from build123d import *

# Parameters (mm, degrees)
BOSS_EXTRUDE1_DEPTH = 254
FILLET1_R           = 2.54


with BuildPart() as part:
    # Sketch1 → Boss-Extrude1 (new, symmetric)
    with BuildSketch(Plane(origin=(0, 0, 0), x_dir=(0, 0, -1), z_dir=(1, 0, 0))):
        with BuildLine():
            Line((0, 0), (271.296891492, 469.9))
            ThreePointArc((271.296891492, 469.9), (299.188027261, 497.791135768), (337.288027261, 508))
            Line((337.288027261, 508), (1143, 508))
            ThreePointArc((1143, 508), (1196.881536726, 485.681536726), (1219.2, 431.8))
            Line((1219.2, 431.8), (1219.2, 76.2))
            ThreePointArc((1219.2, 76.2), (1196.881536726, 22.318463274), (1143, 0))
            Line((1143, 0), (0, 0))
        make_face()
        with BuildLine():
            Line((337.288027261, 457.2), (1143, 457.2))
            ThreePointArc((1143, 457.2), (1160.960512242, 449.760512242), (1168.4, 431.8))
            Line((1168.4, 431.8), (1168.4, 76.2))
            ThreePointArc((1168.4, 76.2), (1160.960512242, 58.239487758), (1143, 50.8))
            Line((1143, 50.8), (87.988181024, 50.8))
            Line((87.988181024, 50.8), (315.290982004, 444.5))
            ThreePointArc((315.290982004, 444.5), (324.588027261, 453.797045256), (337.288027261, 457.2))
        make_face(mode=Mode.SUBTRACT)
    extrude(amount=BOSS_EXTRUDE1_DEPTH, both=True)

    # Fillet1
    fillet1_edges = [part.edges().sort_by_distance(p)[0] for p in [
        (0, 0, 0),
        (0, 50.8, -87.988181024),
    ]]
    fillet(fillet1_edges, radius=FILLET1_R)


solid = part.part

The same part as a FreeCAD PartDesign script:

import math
import FreeCAD as App
import Part
import Sketcher
Q = App.Units.Quantity


def edges_at(feature, points):
    """Names of the edges that pass closest to the given points."""
    edges = feature.Shape.Edges
    near = lambda p: min(range(len(edges)), key=lambda i: edges[i].distToShape(Part.Vertex(*p))[0])
    return sorted({f"Edge{near(p) + 1}" for p in points})

doc = App.newDocument("Part")
params = doc.addObject("Spreadsheet::Sheet", "Params")
for row, (alias, value) in enumerate([
    ("sketch1_radius", "3 in"),
    ("sketch1_radius2", "1 in"),
    ("sketch1_width", "14 in"),
    ("sketch1_height", "45 in"),
    ("pad1_length", "20 in"),
    ("fillet_radius", "0.1 in"),
], start=1):
    params.set(f"A{row}", alias)
    params.set(f"B{row}", "=" + value)
    params.setAlias(f"B{row}", alias)

body = doc.addObject("PartDesign::Body", "Body")

# Sketch on YZ plane
sketch1 = doc.addObject("Sketcher::SketchObject", "Sketch")
body.addObject(sketch1)
sketch1.AttachmentSupport = (doc.YZ_Plane, [""])
sketch1.MapMode = "FlatFace"
sketch1.addGeometry([
    Part.LineSegment(App.Vector(469.9, -271.296891, 0), App.Vector(0, 0, 0)),  # 0
    Part.LineSegment(App.Vector(0, 0, 0), App.Vector(0, -1143, 0)),  # 1
    Part.ArcOfCircle(Part.Circle(App.Vector(76.2, -1143, 0), App.Vector(0, 0, 1), 76.2), math.radians(-180), math.radians(-90)),  # 2
    Part.LineSegment(App.Vector(76.2, -1219.2, 0), App.Vector(431.8, -1219.2, 0)),  # 3
    Part.ArcOfCircle(Part.Circle(App.Vector(431.8, -1143, 0), App.Vector(0, 0, 1), 76.2), math.radians(-90), math.radians(0)),  # 4
    Part.LineSegment(App.Vector(508, -1143, 0), App.Vector(508, -337.288027, 0)),  # 5
    Part.ArcOfCircle(Part.Circle(App.Vector(431.8, -337.288027, 0), App.Vector(0, 0, 1), 76.2), math.radians(0), math.radians(60)),  # 6
    Part.LineSegment(App.Vector(457.2, -337.288027, 0), App.Vector(457.2, -1143, 0)),  # 7
    Part.ArcOfCircle(Part.Circle(App.Vector(431.8, -1143, 0), App.Vector(0, 0, 1), 25.4), math.radians(-90), math.radians(0)),  # 8
    Part.LineSegment(App.Vector(431.8, -1168.4, 0), App.Vector(76.2, -1168.4, 0)),  # 9
    Part.ArcOfCircle(Part.Circle(App.Vector(76.2, -1143, 0), App.Vector(0, 0, 1), 25.4), math.radians(180), math.radians(270)),  # 10
    Part.LineSegment(App.Vector(50.8, -1143, 0), App.Vector(50.8, -87.988181, 0)),  # 11
    Part.LineSegment(App.Vector(50.8, -87.988181, 0), App.Vector(444.5, -315.290982, 0)),  # 12
    Part.ArcOfCircle(Part.Circle(App.Vector(431.8, -337.288027, 0), App.Vector(0, 0, 1), 25.4), math.radians(0), math.radians(60)),  # 13
], False)
sketch1.addConstraint([
    Sketcher.Constraint("Coincident", 0, 2, 1, 1),
    Sketcher.Constraint("Tangent", 1, 2, 2, 1),
    Sketcher.Constraint("Tangent", 2, 2, 3, 1),
    Sketcher.Constraint("Tangent", 3, 2, 4, 1),
    Sketcher.Constraint("Tangent", 4, 2, 5, 1),
    Sketcher.Constraint("Tangent", 5, 2, 6, 1),
    Sketcher.Constraint("Tangent", 6, 2, 0, 1),
    Sketcher.Constraint("Tangent", 7, 2, 8, 2),
    Sketcher.Constraint("Tangent", 8, 1, 9, 1),
    Sketcher.Constraint("Tangent", 9, 2, 10, 2),
    Sketcher.Constraint("Tangent", 10, 1, 11, 1),
    Sketcher.Constraint("Coincident", 11, 2, 12, 1),
    Sketcher.Constraint("Tangent", 12, 2, 13, 2),
    Sketcher.Constraint("Tangent", 13, 1, 7, 1),
    Sketcher.Constraint("Vertical", 1),
    Sketcher.Constraint("Horizontal", 3),
    Sketcher.Constraint("Vertical", 5),
    Sketcher.Constraint("Vertical", 7),
    Sketcher.Constraint("Horizontal", 9),
    Sketcher.Constraint("Vertical", 11),
    Sketcher.Constraint("Coincident", 0, 2, -1, 1),
    Sketcher.Constraint("Coincident", 8, 3, 4, 3),
    Sketcher.Constraint("Coincident", 10, 3, 2, 3),
    Sketcher.Constraint("Coincident", 13, 3, 6, 3),
    Sketcher.Constraint("Equal", 2, 4),
    Sketcher.Constraint("Equal", 4, 6),
    Sketcher.Constraint("Parallel", 0, 12),
    Sketcher.Constraint("Radius", 2, Q("3 in")),
    Sketcher.Constraint("Radius", 8, Q("1 in")),
    Sketcher.Constraint("DistanceX", 3, 1, 3, 2, Q("14 in")),
    Sketcher.Constraint("DistanceY", 1, 2, 1, 1, Q("45 in")),
    Sketcher.Constraint("Angle", 0, Q("150 deg")),
])
sketch1.setExpression("Constraints[27]", "Params.sketch1_radius")
sketch1.setExpression("Constraints[28]", "Params.sketch1_radius2")
sketch1.setExpression("Constraints[29]", "Params.sketch1_width")
sketch1.setExpression("Constraints[30]", "Params.sketch1_height")
pad1 = doc.addObject("PartDesign::Pad", "Pad")
body.addObject(pad1)
pad1.Profile = sketch1
pad1.setExpression("Length", "Params.pad1_length")
pad1.Midplane = True
doc.recompute()

fillet = doc.addObject("PartDesign::Fillet", "Fillet")
body.addObject(fillet)
fillet.Base = (pad1, edges_at(pad1, [(0, 0, 0), (0, 50.8, -87.988)]))
fillet.setExpression("Radius", "Params.fillet_radius")

doc.recompute()
